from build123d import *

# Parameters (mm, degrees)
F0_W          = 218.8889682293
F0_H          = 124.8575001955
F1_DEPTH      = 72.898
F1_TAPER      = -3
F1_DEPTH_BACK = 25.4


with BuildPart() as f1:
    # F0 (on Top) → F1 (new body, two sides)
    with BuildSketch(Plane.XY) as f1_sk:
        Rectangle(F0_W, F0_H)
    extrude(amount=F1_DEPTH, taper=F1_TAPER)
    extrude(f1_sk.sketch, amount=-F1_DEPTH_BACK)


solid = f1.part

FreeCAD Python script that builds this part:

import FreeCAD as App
import Part
import Sketcher
from FreeCAD import Vector
Q = App.Units.Quantity

doc = App.newDocument("Part")
body = doc.addObject("PartDesign::Body", "Body")

# Sketch on XY plane
sketch1 = body.newObject("Sketcher::SketchObject", "Sketch")
sketch1.AttachmentSupport = (doc.getObject("XY_Plane"), [""])
sketch1.MapMode = "FlatFace"
sketch1.addGeometry(Part.LineSegment(Vector(-109, 62, 0), Vector(-109, -62, 0)), False)
sketch1.addGeometry(Part.LineSegment(Vector(-109, -62, 0), Vector(109, -62, 0)), False)
sketch1.addGeometry(Part.LineSegment(Vector(109, -62, 0), Vector(109, 62, 0)), False)
sketch1.addGeometry(Part.LineSegment(Vector(109, 62, 0), Vector(-109, 62, 0)), False)
sketch1.addConstraint(Sketcher.Constraint("Coincident", 0, 2, 1, 1))
sketch1.addConstraint(Sketcher.Constraint("Coincident", 1, 2, 2, 1))
sketch1.addConstraint(Sketcher.Constraint("Coincident", 2, 2, 3, 1))
sketch1.addConstraint(Sketcher.Constraint("Coincident", 3, 2, 0, 1))
sketch1.addConstraint(Sketcher.Constraint("Vertical", 0))
sketch1.addConstraint(Sketcher.Constraint("Horizontal", 1))
sketch1.addConstraint(Sketcher.Constraint("Vertical", 2))
sketch1.addConstraint(Sketcher.Constraint("Horizontal", 3))
sketch1.addConstraint(Sketcher.Constraint("Symmetric", 0, 2, 2, 2, -1, 1))
sketch1.addConstraint(Sketcher.Constraint("DistanceY", 0, 2, 0, 1, Q("124.8575 mm")))
sketch1.addConstraint(Sketcher.Constraint("DistanceX", 1, 1, 1, 2, Q("218.888968 mm")))
pad1 = body.newObject("PartDesign::Pad", "Pad")
pad1.Profile = sketch1
pad1.Length = Q("2.87 in")
pad1.TaperAngle = 3
pad2 = body.newObject("PartDesign::Pad", "Pad001")
pad2.Profile = sketch1
pad2.Length = Q("1 in")
pad2.Reversed = True

doc.recompute()
